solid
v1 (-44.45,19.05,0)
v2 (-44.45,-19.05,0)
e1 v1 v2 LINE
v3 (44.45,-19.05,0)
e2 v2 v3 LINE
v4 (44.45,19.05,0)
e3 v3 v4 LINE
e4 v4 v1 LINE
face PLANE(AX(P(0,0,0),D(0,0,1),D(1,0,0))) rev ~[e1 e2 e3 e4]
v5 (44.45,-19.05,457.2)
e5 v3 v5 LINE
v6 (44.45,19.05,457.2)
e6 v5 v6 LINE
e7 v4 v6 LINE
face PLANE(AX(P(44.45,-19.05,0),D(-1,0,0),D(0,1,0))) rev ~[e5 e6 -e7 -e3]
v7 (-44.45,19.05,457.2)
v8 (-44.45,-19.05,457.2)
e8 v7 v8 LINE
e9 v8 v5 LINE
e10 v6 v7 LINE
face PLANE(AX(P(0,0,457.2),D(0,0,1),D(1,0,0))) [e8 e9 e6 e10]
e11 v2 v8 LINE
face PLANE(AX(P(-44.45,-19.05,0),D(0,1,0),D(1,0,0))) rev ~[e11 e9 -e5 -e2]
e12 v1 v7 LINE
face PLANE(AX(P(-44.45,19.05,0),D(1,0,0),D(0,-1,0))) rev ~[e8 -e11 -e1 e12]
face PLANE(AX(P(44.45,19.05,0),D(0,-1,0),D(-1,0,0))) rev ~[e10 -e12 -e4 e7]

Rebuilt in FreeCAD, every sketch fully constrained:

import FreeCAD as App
import Part
import Sketcher
from FreeCAD import Vector
Q = App.Units.Quantity


def add_polygon(sketch, points):
    """Adds a closed chain of lines whose ends are joined by coincident constraints."""
    first, n = sketch.GeometryCount, len(points)
    for a, b in zip(points, points[1:] + points[:1]):
        sketch.addGeometry(Part.LineSegment(App.Vector(*a, 0), App.Vector(*b, 0)), False)
    for i in range(n):
        sketch.addConstraint(Sketcher.Constraint("Coincident", first + i, 2, first + (i + 1) % n, 1))

doc = App.newDocument("Part")
body = doc.addObject("PartDesign::Body", "Body")

# Sketch on XY plane
sketch1 = body.newObject("Sketcher::SketchObject", "Sketch")
sketch1.AttachmentSupport = (doc.getObject("XY_Plane"), [""])
sketch1.MapMode = "FlatFace"
add_polygon(sketch1, [(-44, 19), (-44, -19), (44, -19), (44, 19)])  # lines 0-3
sketch1.addConstraint(Sketcher.Constraint("Vertical", 0))
sketch1.addConstraint(Sketcher.Constraint("Horizontal", 1))
sketch1.addConstraint(Sketcher.Constraint("Vertical", 2))
sketch1.addConstraint(Sketcher.Constraint("Horizontal", 3))
sketch1.addConstraint(Sketcher.Constraint("Symmetric", 0, 2, 2, 2, -1, 1))
sketch1.addConstraint(Sketcher.Constraint("DistanceX", 1, 1, 1, 2, Q("3.5 in")))
sketch1.addConstraint(Sketcher.Constraint("DistanceY", 0, 2, 0, 1, Q("1.5 in")))
pad1 = body.newObject("PartDesign::Pad", "Pad")
pad1.Profile = sketch1
pad1.Length = Q("18 in")

doc.recompute()
